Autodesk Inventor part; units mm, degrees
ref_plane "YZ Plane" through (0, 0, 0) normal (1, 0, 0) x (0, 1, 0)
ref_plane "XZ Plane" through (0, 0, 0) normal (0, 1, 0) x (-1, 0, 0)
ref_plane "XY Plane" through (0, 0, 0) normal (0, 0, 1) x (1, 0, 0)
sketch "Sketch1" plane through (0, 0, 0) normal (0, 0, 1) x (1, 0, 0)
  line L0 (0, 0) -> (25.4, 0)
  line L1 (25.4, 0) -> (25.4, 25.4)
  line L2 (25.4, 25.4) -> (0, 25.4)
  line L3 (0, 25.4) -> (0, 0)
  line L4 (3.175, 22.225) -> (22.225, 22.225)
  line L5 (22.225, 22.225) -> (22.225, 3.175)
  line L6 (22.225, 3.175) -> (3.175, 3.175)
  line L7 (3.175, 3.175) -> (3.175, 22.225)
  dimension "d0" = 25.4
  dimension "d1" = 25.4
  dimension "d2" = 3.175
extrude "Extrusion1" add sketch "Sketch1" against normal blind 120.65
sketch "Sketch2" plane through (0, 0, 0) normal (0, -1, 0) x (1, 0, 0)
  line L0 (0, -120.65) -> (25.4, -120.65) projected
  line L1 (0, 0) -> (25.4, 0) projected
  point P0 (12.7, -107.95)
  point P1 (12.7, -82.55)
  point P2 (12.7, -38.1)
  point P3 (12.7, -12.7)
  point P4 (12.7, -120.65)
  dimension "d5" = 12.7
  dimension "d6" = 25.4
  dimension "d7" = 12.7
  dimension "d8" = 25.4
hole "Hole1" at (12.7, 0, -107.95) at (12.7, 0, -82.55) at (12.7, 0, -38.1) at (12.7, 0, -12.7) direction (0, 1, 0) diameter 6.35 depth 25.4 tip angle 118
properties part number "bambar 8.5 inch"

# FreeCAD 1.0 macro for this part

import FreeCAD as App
import Part
import Sketcher
from FreeCAD import Vector
Q = App.Units.Quantity

doc = App.newDocument("Part")
body = doc.addObject("PartDesign::Body", "Body")

# Sketch on XY plane
sketch1 = doc.addObject("Sketcher::SketchObject", "Sketch")
body.addObject(sketch1)
sketch1.AttachmentSupport = (doc.XY_Plane, [""])
sketch1.MapMode = "FlatFace"
sketch1.addGeometry(Part.LineSegment(Vector(0, 25, 0), Vector(0, 0, 0)), False)
sketch1.addGeometry(Part.LineSegment(Vector(0, 0, 0), Vector(25, 0, 0)), False)
sketch1.addGeometry(Part.LineSegment(Vector(25, 0, 0), Vector(25, 25, 0)), False)
sketch1.addGeometry(Part.LineSegment(Vector(25, 25, 0), Vector(0, 25, 0)), False)
sketch1.addGeometry(Part.LineSegment(Vector(3, 3, 0), Vector(3, 22, 0)), False)
sketch1.addGeometry(Part.LineSegment(Vector(3, 22, 0), Vector(22, 22, 0)), False)
sketch1.addGeometry(Part.LineSegment(Vector(22, 22, 0), Vector(22, 3, 0)), False)
sketch1.addGeometry(Part.LineSegment(Vector(22, 3, 0), Vector(3, 3, 0)), False)
sketch1.addConstraint(Sketcher.Constraint("Coincident", 0, 2, 1, 1))
sketch1.addConstraint(Sketcher.Constraint("Coincident", 1, 2, 2, 1))
sketch1.addConstraint(Sketcher.Constraint("Coincident", 2, 2, 3, 1))
sketch1.addConstraint(Sketcher.Constraint("Coincident", 3, 2, 0, 1))
sketch1.addConstraint(Sketcher.Constraint("Coincident", 4, 2, 5, 1))
sketch1.addConstraint(Sketcher.Constraint("Coincident", 5, 2, 6, 1))
sketch1.addConstraint(Sketcher.Constraint("Coincident", 6, 2, 7, 1))
sketch1.addConstraint(Sketcher.Constraint("Coincident", 7, 2, 4, 1))
sketch1.addConstraint(Sketcher.Constraint("Vertical", 0))
sketch1.addConstraint(Sketcher.Constraint("Horizontal", 1))
sketch1.addConstraint(Sketcher.Constraint("Vertical", 2))
sketch1.addConstraint(Sketcher.Constraint("Horizontal", 3))
sketch1.addConstraint(Sketcher.Constraint("Vertical", 4))
sketch1.addConstraint(Sketcher.Constraint("Horizontal", 5))
sketch1.addConstraint(Sketcher.Constraint("Vertical", 6))
sketch1.addConstraint(Sketcher.Constraint("Horizontal", 7))
sketch1.addConstraint(Sketcher.Constraint("Coincident", 0, 2, -1, 1))
sketch1.addConstraint(Sketcher.Constraint("Equal", 3, 0))
sketch1.addConstraint(Sketcher.Constraint("Equal", 7, 4))
sketch1.addConstraint(Sketcher.Constraint("DistanceX", 1, 1, 1, 2, Q("1 in")))
sketch1.addConstraint(Sketcher.Constraint("DistanceX", -1, 1, 4, 2, Q("0.125 in")))
sketch1.addConstraint(Sketcher.Constraint("DistanceY", -1, 1, 6, 2, Q("0.125 in")))
sketch1.addConstraint(Sketcher.Constraint("DistanceY", 4, 2, 3, 2, Q("0.125 in")))
pad1 = doc.addObject("PartDesign::Pad", "Pad")
body.addObject(pad1)
pad1.Profile = sketch1
pad1.Length = Q("4.75 in")
pad1.Reversed = True

# Sketch on XZ plane
sketch2 = doc.addObject("Sketcher::SketchObject", "Sketch001")
body.addObject(sketch2)
sketch2.AttachmentSupport = (doc.XZ_Plane, [""])
sketch2.MapMode = "FlatFace"
sketch2.addGeometry(Part.Circle(Vector(12.7, -108, 0), Vector(0, 0, 1), 3.2), False)
sketch2.addGeometry(Part.Circle(Vector(12.7, -82.5, 0), Vector(0, 0, 1), 3.2), False)
sketch2.addGeometry(Part.Circle(Vector(12.7, -38.1, 0), Vector(0, 0, 1), 3.2), False)
sketch2.addGeometry(Part.Circle(Vector(12.7, -12.7, 0), Vector(0, 0, 1), 3.2), False)
sketch2.addConstraint(Sketcher.Constraint("Equal", 0, 1))
sketch2.addConstraint(Sketcher.Constraint("Equal", 1, 2))
sketch2.addConstraint(Sketcher.Constraint("Equal", 2, 3))
sketch2.addConstraint(Sketcher.Constraint("Vertical", 0, 3, 1, 3))
sketch2.addConstraint(Sketcher.Constraint("Vertical", 1, 3, 2, 3))
sketch2.addConstraint(Sketcher.Constraint("Vertical", 2, 3, 3, 3))
sketch2.addConstraint(Sketcher.Constraint("Diameter", 0, Q("0.25 in")))
sketch2.addConstraint(Sketcher.Constraint("DistanceY", 0, 3, 1, 3, Q("1 in")))
sketch2.addConstraint(Sketcher.Constraint("DistanceY", 2, 3, 3, 3, Q("1 in")))
sketch2.addConstraint(Sketcher.Constraint("DistanceX", -1, 1, 0, 3, Q("0.5 in")))
sketch2.addConstraint(Sketcher.Constraint("DistanceY", 2, 3, -1, 1, Q("1.5 in")))
sketch2.addConstraint(Sketcher.Constraint("DistanceY", 0, 3, -1, 1, Q("4.25 in")))
doc.recompute()
hole = doc.addObject("PartDesign::Hole", "Hole")
body.addObject(hole)
hole.Profile = sketch2
hole.ThreadType = "None"
hole.Diameter = Q("0.25 in")
hole.DepthType = "Dimension"
hole.Depth = Q("1 in")
hole.DrillPoint = "Angled"
hole.DrillPointAngle = 118

doc.recompute()
